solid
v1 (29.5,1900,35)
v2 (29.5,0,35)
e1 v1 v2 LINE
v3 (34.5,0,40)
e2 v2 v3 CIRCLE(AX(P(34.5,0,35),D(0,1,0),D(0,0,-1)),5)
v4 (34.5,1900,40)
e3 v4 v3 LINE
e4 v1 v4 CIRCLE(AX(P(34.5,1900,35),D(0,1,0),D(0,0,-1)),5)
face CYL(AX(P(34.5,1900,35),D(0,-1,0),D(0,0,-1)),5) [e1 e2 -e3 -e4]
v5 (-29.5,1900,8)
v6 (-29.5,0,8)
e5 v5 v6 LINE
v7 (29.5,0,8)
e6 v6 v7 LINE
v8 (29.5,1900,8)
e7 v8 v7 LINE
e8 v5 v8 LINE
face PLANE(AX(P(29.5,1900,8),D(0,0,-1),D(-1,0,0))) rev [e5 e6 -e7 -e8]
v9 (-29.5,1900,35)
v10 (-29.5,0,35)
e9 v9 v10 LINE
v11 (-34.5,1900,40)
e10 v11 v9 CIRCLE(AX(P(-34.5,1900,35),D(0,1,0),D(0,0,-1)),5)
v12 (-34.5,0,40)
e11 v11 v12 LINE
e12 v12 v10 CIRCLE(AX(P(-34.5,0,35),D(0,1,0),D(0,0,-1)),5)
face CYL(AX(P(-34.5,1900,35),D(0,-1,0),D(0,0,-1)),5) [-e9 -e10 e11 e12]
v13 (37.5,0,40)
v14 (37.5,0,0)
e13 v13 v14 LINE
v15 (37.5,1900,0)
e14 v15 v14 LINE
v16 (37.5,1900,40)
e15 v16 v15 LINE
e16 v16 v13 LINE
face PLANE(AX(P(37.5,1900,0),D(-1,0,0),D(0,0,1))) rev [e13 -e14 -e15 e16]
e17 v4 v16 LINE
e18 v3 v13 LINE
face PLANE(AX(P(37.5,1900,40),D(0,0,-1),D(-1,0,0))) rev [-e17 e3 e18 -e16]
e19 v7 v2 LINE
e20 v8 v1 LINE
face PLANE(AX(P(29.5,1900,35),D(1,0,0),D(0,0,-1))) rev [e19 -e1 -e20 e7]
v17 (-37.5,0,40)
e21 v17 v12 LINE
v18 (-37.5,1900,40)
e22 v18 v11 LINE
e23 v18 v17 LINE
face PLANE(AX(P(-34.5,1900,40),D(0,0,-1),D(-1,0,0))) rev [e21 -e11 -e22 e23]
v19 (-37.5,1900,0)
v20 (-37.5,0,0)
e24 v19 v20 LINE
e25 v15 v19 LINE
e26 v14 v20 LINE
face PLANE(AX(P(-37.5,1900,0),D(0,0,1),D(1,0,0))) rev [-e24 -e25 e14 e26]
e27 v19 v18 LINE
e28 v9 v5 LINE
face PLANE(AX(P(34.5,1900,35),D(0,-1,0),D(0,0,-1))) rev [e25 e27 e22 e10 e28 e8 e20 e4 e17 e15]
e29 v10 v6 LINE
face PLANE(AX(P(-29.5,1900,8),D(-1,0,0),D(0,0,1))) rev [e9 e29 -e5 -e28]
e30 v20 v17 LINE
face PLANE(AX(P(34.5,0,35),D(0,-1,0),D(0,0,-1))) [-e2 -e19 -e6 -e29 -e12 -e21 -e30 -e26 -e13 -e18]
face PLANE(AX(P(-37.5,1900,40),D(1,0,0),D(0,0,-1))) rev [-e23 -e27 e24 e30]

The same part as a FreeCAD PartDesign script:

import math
import FreeCAD as App
import Part
import Sketcher

V = App.Vector

doc = App.newDocument("Part")
body = doc.addObject("PartDesign::Body", "Body")

# Sketch on XZ plane
sketch1 = body.newObject("Sketcher::SketchObject", "Sketch")
sketch1.AttachmentSupport = (doc.getObject("XZ_Plane"), [""])
sketch1.MapMode = "FlatFace"
sketch1.addGeometry([
    Part.LineSegment(V(37.5, 0, 0), V(-37.5, 0, 0)),  # 0
    Part.LineSegment(V(-37.5, 0, 0), V(-37.5, 40, 0)),  # 1
    Part.LineSegment(V(-37.5, 40, 0), V(-34.5, 40, 0)),  # 2
    Part.ArcOfCircle(Part.Circle(V(-34.5, 35, 0), V(0, 0, 1), 5), math.radians(0), math.radians(90)),  # 3
    Part.LineSegment(V(-29.5, 35, 0), V(-29.5, 8, 0)),  # 4
    Part.LineSegment(V(-29.5, 8, 0), V(29.5, 8, 0)),  # 5
    Part.LineSegment(V(29.5, 8, 0), V(29.5, 35, 0)),  # 6
    Part.ArcOfCircle(Part.Circle(V(34.5, 35, 0), V(0, 0, 1), 5), math.radians(90), math.radians(180)),  # 7
    Part.LineSegment(V(34.5, 40, 0), V(37.5, 40, 0)),  # 8
    Part.LineSegment(V(37.5, 40, 0), V(37.5, 0, 0)),  # 9
], False)
sketch1.addConstraint([
    Sketcher.Constraint("Coincident", 0, 2, 1, 1),
    Sketcher.Constraint("Coincident", 1, 2, 2, 1),
    Sketcher.Constraint("Tangent", 2, 2, 3, 2),
    Sketcher.Constraint("Tangent", 3, 1, 4, 1),
    Sketcher.Constraint("Coincident", 4, 2, 5, 1),
    Sketcher.Constraint("Coincident", 5, 2, 6, 1),
    Sketcher.Constraint("Tangent", 6, 2, 7, 2),
    Sketcher.Constraint("Tangent", 7, 1, 8, 1),
    Sketcher.Constraint("Coincident", 8, 2, 9, 1),
    Sketcher.Constraint("Coincident", 9, 2, 0, 1),
    Sketcher.Constraint("Horizontal", 0),
    Sketcher.Constraint("Vertical", 1),
    Sketcher.Constraint("Horizontal", 2),
    Sketcher.Constraint("Vertical", 4),
    Sketcher.Constraint("Horizontal", 5),
    Sketcher.Constraint("Vertical", 6),
    Sketcher.Constraint("Horizontal", 8),
    Sketcher.Constraint("Vertical", 9),
    Sketcher.Constraint("Equal", 3, 7),
    Sketcher.Constraint("Symmetric", 0, 2, 9, 2, -1, 1),
    Sketcher.Constraint("Symmetric", 3, 3, 7, 3, -2),
    Sketcher.Constraint("Radius", 3, 5.0),
    Sketcher.Constraint("DistanceX", 0, 2, 0, 1, 75.0),
    Sketcher.Constraint("DistanceX", 2, 1, 2, 2, 3.0),
    Sketcher.Constraint("DistanceY", 1, 1, 1, 2, 40.0),
    Sketcher.Constraint("DistanceY", 4, 2, 4, 1, 27.0),
])
pad1 = body.newObject("PartDesign::Pad", "Pad")
pad1.Profile = sketch1
pad1.Length = 1900
pad1.Reversed = True

doc.recompute()
